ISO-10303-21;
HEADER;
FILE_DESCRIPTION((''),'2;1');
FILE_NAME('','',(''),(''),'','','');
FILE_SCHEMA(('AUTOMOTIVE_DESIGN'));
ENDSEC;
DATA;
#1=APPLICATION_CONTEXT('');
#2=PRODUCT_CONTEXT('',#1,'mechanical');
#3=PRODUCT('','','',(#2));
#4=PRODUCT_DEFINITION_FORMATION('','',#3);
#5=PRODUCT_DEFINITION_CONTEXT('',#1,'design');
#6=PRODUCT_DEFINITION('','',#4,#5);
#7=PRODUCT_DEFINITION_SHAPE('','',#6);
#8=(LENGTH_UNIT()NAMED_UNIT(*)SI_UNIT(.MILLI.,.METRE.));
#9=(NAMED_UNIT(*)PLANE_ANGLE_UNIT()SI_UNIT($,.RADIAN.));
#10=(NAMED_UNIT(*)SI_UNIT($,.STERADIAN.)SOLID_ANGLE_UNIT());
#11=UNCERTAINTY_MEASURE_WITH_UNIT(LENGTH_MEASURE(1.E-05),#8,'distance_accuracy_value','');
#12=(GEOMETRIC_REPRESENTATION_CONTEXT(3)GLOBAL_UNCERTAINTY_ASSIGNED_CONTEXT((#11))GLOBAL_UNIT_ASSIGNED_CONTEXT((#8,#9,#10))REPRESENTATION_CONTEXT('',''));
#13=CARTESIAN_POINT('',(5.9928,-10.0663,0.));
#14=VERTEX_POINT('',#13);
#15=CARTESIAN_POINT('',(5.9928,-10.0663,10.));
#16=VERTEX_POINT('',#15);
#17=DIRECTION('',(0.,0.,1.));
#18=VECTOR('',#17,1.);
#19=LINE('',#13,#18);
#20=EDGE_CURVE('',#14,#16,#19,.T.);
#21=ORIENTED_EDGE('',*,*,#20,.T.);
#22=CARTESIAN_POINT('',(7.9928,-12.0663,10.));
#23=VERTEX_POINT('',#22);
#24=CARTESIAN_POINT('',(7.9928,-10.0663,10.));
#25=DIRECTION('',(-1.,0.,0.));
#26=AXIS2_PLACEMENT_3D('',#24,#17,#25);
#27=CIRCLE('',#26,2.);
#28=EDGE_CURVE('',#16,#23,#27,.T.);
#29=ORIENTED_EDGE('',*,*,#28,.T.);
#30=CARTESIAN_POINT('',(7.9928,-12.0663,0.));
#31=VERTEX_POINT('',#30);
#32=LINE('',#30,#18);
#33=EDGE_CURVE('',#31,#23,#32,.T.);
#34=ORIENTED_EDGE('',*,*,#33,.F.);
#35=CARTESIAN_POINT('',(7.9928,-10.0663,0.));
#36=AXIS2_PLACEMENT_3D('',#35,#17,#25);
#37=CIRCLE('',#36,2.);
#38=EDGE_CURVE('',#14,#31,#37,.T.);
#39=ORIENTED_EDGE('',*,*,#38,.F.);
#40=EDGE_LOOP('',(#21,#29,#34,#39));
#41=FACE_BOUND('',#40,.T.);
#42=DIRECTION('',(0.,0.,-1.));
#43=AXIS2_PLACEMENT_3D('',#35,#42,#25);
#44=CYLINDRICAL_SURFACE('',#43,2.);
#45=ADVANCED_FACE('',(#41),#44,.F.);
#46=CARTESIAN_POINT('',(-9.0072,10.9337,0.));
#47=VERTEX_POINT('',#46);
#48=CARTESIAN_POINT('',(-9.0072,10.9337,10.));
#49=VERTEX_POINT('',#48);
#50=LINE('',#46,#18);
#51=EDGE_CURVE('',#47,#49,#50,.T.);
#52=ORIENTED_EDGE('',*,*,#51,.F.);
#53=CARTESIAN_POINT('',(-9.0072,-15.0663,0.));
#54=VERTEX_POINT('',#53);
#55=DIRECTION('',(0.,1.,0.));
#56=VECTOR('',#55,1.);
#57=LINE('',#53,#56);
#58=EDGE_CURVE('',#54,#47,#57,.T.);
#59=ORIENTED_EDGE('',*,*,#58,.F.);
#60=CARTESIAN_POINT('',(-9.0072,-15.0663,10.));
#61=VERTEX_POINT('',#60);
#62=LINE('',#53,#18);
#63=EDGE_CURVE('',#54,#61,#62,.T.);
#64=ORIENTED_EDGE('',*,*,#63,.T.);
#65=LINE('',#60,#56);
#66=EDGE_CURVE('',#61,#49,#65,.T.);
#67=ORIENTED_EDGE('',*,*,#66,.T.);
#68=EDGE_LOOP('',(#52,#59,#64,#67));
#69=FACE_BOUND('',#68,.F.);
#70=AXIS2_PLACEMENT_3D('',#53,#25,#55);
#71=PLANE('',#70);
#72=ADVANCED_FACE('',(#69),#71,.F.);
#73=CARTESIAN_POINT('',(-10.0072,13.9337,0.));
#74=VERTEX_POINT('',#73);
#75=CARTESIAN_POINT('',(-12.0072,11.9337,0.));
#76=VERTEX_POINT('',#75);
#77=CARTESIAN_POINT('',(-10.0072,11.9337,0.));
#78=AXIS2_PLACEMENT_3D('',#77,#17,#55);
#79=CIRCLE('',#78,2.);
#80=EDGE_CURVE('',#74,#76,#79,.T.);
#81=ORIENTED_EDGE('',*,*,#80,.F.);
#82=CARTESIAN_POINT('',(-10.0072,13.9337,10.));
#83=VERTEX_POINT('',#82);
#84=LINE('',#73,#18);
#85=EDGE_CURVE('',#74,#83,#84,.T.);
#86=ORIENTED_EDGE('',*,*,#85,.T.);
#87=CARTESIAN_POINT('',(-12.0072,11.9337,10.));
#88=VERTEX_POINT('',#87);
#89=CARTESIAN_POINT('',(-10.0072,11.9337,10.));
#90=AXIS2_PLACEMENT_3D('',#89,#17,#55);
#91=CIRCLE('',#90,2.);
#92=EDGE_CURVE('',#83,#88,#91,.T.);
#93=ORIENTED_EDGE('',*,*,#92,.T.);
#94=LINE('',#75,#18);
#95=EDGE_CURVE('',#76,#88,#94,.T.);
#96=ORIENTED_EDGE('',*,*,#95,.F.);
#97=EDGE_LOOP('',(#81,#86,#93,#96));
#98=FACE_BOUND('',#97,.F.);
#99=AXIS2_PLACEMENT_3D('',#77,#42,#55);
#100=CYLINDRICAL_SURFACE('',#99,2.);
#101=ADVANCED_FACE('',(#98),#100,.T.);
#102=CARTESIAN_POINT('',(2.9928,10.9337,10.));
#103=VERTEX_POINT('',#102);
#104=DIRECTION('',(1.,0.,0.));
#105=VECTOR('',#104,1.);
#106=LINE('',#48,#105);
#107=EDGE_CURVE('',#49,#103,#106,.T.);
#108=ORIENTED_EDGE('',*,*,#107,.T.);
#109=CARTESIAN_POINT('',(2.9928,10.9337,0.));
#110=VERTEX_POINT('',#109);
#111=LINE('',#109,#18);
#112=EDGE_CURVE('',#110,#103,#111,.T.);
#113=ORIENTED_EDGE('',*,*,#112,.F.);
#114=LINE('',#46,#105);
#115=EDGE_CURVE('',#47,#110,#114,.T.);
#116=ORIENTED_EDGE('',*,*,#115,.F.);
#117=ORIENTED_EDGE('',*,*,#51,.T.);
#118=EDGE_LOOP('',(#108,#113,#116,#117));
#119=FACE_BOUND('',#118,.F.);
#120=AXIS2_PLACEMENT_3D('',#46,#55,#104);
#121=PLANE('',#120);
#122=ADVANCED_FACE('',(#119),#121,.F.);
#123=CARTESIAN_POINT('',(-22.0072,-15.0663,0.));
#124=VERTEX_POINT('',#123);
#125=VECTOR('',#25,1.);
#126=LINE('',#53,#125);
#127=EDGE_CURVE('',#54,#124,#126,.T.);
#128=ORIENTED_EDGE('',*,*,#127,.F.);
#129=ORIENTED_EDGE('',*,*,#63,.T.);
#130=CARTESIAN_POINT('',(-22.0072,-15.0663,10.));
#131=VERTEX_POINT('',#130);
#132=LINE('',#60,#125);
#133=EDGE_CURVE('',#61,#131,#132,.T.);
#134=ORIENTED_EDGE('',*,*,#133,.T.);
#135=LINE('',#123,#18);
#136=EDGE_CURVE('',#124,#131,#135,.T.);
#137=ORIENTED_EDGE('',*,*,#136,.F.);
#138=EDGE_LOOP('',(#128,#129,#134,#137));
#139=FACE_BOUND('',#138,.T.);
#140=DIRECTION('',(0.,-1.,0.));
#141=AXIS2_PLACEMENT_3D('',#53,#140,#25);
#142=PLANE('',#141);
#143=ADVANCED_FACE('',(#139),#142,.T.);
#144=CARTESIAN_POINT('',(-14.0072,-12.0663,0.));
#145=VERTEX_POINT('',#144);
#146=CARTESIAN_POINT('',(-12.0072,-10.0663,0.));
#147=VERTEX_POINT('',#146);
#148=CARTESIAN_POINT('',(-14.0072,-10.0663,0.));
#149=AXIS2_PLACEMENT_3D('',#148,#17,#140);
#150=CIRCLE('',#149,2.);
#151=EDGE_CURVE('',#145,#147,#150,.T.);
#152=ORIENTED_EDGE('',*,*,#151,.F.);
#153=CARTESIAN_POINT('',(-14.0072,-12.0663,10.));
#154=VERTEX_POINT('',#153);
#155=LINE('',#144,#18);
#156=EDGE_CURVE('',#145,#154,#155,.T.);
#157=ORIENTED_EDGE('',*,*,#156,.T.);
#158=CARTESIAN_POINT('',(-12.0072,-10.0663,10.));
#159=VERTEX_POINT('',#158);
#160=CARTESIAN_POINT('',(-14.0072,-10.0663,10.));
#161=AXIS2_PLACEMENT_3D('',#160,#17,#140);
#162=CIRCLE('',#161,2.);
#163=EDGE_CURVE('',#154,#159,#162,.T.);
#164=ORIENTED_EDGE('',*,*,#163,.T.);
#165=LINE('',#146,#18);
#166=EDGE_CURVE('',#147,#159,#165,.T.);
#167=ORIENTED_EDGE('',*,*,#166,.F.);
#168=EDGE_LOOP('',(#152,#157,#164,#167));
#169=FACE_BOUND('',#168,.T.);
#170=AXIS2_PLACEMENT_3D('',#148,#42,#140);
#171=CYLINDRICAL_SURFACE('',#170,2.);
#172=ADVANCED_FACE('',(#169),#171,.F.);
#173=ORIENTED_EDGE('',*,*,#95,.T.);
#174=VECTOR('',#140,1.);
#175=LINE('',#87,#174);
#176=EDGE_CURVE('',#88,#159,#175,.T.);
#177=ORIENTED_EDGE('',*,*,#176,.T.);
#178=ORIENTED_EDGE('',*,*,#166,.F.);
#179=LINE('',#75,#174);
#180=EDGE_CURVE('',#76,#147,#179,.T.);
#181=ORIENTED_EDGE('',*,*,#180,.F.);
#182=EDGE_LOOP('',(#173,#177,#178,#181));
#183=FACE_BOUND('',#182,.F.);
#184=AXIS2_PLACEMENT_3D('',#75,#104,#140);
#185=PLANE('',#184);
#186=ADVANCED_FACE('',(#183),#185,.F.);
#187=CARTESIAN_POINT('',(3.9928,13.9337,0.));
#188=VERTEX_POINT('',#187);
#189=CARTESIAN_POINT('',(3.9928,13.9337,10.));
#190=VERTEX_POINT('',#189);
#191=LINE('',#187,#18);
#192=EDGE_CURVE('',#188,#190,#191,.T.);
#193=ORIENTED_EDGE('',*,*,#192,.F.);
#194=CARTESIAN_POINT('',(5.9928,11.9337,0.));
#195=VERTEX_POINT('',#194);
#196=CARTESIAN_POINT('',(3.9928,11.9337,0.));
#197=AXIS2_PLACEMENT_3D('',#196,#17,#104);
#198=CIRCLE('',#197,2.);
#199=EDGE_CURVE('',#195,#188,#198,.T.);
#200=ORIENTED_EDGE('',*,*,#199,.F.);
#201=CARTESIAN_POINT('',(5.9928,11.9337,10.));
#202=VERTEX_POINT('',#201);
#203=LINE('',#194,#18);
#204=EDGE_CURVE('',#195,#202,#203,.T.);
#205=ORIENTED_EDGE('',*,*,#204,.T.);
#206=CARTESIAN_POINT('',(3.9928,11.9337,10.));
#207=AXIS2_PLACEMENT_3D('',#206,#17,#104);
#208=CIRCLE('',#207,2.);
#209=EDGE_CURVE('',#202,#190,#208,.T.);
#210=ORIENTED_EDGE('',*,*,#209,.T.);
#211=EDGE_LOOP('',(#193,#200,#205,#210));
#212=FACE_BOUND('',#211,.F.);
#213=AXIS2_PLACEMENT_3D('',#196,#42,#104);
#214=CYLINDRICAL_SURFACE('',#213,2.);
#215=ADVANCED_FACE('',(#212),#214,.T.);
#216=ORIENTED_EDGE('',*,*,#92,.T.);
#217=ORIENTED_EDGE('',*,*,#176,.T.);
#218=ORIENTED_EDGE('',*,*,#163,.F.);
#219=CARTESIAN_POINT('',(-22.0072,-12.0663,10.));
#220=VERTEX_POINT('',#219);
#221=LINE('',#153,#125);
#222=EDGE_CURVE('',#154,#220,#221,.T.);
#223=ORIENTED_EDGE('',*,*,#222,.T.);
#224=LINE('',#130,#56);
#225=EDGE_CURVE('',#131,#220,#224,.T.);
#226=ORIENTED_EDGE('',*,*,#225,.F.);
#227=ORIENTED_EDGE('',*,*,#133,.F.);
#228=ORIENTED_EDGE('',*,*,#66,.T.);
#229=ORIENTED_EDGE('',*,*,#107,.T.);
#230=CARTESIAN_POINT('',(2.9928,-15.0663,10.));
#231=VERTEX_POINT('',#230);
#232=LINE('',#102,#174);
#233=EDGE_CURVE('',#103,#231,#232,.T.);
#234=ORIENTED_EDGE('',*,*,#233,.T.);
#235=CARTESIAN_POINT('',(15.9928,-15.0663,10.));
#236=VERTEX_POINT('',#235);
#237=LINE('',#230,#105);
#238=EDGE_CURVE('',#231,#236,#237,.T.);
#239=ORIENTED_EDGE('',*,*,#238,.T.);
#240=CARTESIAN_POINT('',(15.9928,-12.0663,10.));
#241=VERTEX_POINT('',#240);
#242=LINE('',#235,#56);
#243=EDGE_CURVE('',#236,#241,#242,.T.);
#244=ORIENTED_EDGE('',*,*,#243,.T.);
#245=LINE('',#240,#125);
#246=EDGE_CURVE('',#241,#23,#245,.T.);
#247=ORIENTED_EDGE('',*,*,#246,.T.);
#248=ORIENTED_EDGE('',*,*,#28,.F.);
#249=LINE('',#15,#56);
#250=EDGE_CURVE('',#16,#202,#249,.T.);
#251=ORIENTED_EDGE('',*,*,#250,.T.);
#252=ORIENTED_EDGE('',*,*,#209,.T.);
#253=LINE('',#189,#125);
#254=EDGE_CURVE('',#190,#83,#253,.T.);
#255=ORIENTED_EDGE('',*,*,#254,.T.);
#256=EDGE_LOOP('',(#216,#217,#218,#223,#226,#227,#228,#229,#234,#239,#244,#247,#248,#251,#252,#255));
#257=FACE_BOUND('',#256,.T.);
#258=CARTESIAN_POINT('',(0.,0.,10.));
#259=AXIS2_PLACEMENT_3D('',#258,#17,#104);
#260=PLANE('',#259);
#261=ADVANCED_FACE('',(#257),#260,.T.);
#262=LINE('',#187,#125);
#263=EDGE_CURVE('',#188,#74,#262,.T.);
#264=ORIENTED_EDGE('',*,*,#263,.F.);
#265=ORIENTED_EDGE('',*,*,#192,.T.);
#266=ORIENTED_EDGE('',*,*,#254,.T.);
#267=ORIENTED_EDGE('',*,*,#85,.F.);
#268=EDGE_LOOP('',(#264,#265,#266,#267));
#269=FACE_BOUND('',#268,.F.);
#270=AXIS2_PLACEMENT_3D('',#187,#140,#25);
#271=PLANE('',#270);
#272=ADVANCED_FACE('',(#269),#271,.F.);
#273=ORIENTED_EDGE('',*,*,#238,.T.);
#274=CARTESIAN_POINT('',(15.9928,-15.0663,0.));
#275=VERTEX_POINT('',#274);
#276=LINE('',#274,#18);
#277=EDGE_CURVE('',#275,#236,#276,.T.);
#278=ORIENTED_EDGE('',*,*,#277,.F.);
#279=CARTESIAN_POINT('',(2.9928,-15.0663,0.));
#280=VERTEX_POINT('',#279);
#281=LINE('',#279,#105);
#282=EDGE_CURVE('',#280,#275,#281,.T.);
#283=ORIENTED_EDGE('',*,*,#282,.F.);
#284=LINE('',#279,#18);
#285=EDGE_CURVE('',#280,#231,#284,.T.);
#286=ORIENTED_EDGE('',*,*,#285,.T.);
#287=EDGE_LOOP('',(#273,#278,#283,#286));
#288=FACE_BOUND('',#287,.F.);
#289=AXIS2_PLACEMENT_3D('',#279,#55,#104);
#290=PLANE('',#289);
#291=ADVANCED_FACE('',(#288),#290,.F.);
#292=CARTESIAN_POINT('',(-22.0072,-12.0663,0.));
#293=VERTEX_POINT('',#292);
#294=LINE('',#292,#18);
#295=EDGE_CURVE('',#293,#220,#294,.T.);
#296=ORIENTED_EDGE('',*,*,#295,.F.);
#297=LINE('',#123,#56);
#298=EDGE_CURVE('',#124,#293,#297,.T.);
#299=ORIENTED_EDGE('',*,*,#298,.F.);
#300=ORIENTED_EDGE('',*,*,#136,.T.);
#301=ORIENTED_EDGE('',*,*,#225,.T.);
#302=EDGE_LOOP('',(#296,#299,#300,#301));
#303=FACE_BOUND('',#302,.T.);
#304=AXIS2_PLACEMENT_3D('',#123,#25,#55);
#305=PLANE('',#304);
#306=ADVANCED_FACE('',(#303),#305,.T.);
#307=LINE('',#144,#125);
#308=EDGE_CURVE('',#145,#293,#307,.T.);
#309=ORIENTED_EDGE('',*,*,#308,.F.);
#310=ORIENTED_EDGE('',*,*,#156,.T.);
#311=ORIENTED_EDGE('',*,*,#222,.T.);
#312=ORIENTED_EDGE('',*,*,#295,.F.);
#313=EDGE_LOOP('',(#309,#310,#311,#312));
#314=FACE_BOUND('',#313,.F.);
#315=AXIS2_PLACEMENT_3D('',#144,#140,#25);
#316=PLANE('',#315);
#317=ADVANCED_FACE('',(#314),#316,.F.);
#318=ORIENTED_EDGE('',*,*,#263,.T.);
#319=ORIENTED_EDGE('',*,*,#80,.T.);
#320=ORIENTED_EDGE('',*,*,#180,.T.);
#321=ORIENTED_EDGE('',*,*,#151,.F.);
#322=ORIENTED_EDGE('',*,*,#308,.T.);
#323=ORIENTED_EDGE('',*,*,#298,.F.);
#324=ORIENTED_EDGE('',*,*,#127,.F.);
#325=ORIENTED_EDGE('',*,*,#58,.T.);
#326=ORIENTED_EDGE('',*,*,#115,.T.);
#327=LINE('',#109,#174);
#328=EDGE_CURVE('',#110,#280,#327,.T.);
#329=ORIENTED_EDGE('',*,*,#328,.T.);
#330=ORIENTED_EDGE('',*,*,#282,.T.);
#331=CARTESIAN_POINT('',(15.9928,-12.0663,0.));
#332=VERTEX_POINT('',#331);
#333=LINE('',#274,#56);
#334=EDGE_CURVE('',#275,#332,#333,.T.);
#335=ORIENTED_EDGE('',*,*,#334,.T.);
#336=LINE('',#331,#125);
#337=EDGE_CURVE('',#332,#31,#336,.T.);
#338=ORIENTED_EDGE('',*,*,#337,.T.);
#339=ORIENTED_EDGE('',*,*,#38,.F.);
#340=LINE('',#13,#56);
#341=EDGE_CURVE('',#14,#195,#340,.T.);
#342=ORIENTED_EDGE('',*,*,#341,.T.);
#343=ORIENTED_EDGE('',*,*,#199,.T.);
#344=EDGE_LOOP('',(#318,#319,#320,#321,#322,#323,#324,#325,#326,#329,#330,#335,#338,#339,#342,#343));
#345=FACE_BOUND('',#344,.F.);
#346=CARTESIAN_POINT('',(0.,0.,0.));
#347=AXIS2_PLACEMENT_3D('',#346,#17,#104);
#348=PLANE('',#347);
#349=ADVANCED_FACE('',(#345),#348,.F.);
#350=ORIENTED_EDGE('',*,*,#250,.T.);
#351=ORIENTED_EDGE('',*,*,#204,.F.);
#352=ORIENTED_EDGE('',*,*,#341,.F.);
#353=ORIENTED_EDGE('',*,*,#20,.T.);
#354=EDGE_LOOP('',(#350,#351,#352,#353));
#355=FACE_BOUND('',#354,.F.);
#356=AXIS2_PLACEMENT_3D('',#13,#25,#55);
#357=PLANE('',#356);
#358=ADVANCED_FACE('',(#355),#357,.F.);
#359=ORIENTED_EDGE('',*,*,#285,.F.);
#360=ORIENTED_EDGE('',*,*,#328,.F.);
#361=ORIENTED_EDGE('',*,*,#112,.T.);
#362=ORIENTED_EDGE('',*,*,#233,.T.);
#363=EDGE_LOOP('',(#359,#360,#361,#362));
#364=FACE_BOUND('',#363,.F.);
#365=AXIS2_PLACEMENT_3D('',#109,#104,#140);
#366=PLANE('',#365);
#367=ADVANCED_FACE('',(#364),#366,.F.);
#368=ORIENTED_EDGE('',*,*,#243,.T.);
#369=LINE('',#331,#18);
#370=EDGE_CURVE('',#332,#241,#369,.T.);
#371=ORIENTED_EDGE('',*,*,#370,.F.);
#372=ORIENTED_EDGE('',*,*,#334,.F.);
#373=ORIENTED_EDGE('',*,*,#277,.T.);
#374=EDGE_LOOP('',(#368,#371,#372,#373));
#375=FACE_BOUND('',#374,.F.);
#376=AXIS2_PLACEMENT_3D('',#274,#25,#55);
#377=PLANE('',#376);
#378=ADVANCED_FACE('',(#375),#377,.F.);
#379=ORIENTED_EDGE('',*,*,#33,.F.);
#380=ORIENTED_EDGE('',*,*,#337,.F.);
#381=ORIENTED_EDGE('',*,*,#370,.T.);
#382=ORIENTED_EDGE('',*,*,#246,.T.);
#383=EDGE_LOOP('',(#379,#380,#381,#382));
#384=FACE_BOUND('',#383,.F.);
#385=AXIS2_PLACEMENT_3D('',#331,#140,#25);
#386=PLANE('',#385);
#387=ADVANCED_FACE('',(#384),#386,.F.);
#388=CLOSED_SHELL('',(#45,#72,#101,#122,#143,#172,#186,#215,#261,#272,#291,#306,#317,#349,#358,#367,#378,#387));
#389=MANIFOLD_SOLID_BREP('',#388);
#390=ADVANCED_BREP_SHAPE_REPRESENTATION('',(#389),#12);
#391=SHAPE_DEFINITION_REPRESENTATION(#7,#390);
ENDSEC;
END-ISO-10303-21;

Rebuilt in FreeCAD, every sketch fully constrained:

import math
import FreeCAD as App
import Part
import Sketcher

doc = App.newDocument("Part")
body = doc.addObject("PartDesign::Body", "Body")

# Sketch on XY plane
sketch1 = body.newObject("Sketcher::SketchObject", "Sketch")
sketch1.AttachmentSupport = (doc.getObject("XY_Plane"), [""])
sketch1.MapMode = "FlatFace"
sketch1.addGeometry([
    Part.LineSegment(App.Vector(-9, -15.1, 0), App.Vector(-9, 10.9, 0)),  # 0
    Part.LineSegment(App.Vector(-9, 10.9, 0), App.Vector(3, 10.9, 0)),  # 1
    Part.LineSegment(App.Vector(3, 10.9, 0), App.Vector(3, -15.1, 0)),  # 2
    Part.LineSegment(App.Vector(3, -15.1, 0), App.Vector(16, -15.1, 0)),  # 3
    Part.LineSegment(App.Vector(16, -15.1, 0), App.Vector(16, -12.1, 0)),  # 4
    Part.LineSegment(App.Vector(16, -12.1, 0), App.Vector(8, -12.1, 0)),  # 5
    Part.ArcOfCircle(Part.Circle(App.Vector(8, -10.1, 0), App.Vector(0, 0, 1), 2), math.radians(180), math.radians(270)),  # 6
    Part.LineSegment(App.Vector(6, -10.1, 0), App.Vector(6, 11.9, 0)),  # 7
    Part.ArcOfCircle(Part.Circle(App.Vector(4, 11.9, 0), App.Vector(0, 0, 1), 2), math.radians(0), math.radians(90)),  # 8
    Part.LineSegment(App.Vector(4, 13.9, 0), App.Vector(-10, 13.9, 0)),  # 9
    Part.ArcOfCircle(Part.Circle(App.Vector(-10, 11.9, 0), App.Vector(0, 0, 1), 2), math.radians(90), math.radians(180)),  # 10
    Part.LineSegment(App.Vector(-12, 11.9, 0), App.Vector(-12, -10.1, 0)),  # 11
    Part.ArcOfCircle(Part.Circle(App.Vector(-14, -10.1, 0), App.Vector(0, 0, 1), 2), math.radians(-90), math.radians(0)),  # 12
    Part.LineSegment(App.Vector(-14, -12.1, 0), App.Vector(-22, -12.1, 0)),  # 13
    Part.LineSegment(App.Vector(-22, -12.1, 0), App.Vector(-22, -15.1, 0)),  # 14
    Part.LineSegment(App.Vector(-22, -15.1, 0), App.Vector(-9, -15.1, 0)),  # 15
], False)
sketch1.addConstraint([
    Sketcher.Constraint("Coincident", 0, 2, 1, 1),
    Sketcher.Constraint("Coincident", 1, 2, 2, 1),
    Sketcher.Constraint("Coincident", 2, 2, 3, 1),
    Sketcher.Constraint("Coincident", 3, 2, 4, 1),
    Sketcher.Constraint("Coincident", 4, 2, 5, 1),
    Sketcher.Constraint("Tangent", 5, 2, 6, 2),
    Sketcher.Constraint("Tangent", 6, 1, 7, 1),
    Sketcher.Constraint("Tangent", 7, 2, 8, 1),
    Sketcher.Constraint("Tangent", 8, 2, 9, 1),
    Sketcher.Constraint("Tangent", 9, 2, 10, 1),
    Sketcher.Constraint("Tangent", 10, 2, 11, 1),
    Sketcher.Constraint("Tangent", 11, 2, 12, 2),
    Sketcher.Constraint("Tangent", 12, 1, 13, 1),
    Sketcher.Constraint("Coincident", 13, 2, 14, 1),
    Sketcher.Constraint("Coincident", 14, 2, 15, 1),
    Sketcher.Constraint("Coincident", 15, 2, 0, 1),
    Sketcher.Constraint("Vertical", 0),
    Sketcher.Constraint("Horizontal", 1),
    Sketcher.Constraint("Vertical", 2),
    Sketcher.Constraint("Horizontal", 3),
    Sketcher.Constraint("Vertical", 4),
    Sketcher.Constraint("Horizontal", 5),
    Sketcher.Constraint("Vertical", 7),
    Sketcher.Constraint("Horizontal", 9),
    Sketcher.Constraint("Vertical", 11),
    Sketcher.Constraint("Horizontal", 13),
    Sketcher.Constraint("Vertical", 14),
    Sketcher.Constraint("Horizontal", 15),
    Sketcher.Constraint("Equal", 6, 8),
    Sketcher.Constraint("Equal", 8, 10),
    Sketcher.Constraint("Equal", 10, 12),
    Sketcher.Constraint("Horizontal", 6, 3, 12, 3),
    Sketcher.Constraint("Horizontal", 3, 2, 14, 2),
    Sketcher.Constraint("Equal", 5, 13),
    Sketcher.Constraint("Equal", 3, 15),
    Sketcher.Constraint("Radius", 6, 2.0),
    Sketcher.Constraint("DistanceX", 1, 1, 1, 2, 12.0),
    Sketcher.Constraint("DistanceX", 3, 1, 3, 2, 13.0),
    Sketcher.Constraint("DistanceY", 0, 1, 0, 2, 26.0),
    Sketcher.Constraint("DistanceY", 4, 1, 4, 2, 3.0),
    Sketcher.Constraint("DistanceX", 0, 2, 8, 3, 13.0),
    Sketcher.Constraint("DistanceY", 1, 2, 8, 2, 3.0),
    Sketcher.Constraint("DistanceX", -1, 1, 6, 3, 7.9928),
    Sketcher.Constraint("DistanceY", 6, 3, -1, 1, 10.0663),
])
pad1 = body.newObject("PartDesign::Pad", "Pad")
pad1.Profile = sketch1
pad1.Length = 10

doc.recompute()
